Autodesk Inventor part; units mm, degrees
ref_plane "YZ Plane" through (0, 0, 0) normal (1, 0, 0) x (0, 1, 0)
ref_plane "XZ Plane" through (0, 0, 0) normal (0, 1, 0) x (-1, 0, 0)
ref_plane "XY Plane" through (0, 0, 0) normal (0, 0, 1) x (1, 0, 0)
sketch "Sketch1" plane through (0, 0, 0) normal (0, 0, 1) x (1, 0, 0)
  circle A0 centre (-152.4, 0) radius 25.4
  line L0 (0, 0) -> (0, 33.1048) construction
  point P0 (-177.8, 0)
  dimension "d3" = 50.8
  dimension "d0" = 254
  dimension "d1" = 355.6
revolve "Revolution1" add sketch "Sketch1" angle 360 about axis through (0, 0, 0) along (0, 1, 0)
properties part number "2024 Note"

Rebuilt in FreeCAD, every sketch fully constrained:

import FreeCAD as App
import Part
import Sketcher
Q = App.Units.Quantity

doc = App.newDocument("Part")
body = doc.addObject("PartDesign::Body", "Body")

sketch1 = body.newObject("Sketcher::SketchObject", "Sketch")
sketch1.AttachmentSupport = (doc.getObject("XY_Plane"), [""])
sketch1.MapMode = "FlatFace"
sketch1.addGeometry(Part.Circle(App.Vector(-152, 0, 0), App.Vector(0, 0, 1), 25), False)
sketch1.addConstraint(Sketcher.Constraint("PointOnObject", 0, 3, -1))
sketch1.addConstraint(Sketcher.Constraint("Diameter", 0, Q("2 in")))
sketch1.addConstraint(Sketcher.Constraint("DistanceX", 0, 3, -1, 1, Q("6 in")))
revolution = body.newObject("PartDesign::Revolution", "Revolution")
revolution.Profile = sketch1
revolution.ReferenceAxis = (sketch1, ["V_Axis"])
revolution.Angle = 360

doc.recompute()
